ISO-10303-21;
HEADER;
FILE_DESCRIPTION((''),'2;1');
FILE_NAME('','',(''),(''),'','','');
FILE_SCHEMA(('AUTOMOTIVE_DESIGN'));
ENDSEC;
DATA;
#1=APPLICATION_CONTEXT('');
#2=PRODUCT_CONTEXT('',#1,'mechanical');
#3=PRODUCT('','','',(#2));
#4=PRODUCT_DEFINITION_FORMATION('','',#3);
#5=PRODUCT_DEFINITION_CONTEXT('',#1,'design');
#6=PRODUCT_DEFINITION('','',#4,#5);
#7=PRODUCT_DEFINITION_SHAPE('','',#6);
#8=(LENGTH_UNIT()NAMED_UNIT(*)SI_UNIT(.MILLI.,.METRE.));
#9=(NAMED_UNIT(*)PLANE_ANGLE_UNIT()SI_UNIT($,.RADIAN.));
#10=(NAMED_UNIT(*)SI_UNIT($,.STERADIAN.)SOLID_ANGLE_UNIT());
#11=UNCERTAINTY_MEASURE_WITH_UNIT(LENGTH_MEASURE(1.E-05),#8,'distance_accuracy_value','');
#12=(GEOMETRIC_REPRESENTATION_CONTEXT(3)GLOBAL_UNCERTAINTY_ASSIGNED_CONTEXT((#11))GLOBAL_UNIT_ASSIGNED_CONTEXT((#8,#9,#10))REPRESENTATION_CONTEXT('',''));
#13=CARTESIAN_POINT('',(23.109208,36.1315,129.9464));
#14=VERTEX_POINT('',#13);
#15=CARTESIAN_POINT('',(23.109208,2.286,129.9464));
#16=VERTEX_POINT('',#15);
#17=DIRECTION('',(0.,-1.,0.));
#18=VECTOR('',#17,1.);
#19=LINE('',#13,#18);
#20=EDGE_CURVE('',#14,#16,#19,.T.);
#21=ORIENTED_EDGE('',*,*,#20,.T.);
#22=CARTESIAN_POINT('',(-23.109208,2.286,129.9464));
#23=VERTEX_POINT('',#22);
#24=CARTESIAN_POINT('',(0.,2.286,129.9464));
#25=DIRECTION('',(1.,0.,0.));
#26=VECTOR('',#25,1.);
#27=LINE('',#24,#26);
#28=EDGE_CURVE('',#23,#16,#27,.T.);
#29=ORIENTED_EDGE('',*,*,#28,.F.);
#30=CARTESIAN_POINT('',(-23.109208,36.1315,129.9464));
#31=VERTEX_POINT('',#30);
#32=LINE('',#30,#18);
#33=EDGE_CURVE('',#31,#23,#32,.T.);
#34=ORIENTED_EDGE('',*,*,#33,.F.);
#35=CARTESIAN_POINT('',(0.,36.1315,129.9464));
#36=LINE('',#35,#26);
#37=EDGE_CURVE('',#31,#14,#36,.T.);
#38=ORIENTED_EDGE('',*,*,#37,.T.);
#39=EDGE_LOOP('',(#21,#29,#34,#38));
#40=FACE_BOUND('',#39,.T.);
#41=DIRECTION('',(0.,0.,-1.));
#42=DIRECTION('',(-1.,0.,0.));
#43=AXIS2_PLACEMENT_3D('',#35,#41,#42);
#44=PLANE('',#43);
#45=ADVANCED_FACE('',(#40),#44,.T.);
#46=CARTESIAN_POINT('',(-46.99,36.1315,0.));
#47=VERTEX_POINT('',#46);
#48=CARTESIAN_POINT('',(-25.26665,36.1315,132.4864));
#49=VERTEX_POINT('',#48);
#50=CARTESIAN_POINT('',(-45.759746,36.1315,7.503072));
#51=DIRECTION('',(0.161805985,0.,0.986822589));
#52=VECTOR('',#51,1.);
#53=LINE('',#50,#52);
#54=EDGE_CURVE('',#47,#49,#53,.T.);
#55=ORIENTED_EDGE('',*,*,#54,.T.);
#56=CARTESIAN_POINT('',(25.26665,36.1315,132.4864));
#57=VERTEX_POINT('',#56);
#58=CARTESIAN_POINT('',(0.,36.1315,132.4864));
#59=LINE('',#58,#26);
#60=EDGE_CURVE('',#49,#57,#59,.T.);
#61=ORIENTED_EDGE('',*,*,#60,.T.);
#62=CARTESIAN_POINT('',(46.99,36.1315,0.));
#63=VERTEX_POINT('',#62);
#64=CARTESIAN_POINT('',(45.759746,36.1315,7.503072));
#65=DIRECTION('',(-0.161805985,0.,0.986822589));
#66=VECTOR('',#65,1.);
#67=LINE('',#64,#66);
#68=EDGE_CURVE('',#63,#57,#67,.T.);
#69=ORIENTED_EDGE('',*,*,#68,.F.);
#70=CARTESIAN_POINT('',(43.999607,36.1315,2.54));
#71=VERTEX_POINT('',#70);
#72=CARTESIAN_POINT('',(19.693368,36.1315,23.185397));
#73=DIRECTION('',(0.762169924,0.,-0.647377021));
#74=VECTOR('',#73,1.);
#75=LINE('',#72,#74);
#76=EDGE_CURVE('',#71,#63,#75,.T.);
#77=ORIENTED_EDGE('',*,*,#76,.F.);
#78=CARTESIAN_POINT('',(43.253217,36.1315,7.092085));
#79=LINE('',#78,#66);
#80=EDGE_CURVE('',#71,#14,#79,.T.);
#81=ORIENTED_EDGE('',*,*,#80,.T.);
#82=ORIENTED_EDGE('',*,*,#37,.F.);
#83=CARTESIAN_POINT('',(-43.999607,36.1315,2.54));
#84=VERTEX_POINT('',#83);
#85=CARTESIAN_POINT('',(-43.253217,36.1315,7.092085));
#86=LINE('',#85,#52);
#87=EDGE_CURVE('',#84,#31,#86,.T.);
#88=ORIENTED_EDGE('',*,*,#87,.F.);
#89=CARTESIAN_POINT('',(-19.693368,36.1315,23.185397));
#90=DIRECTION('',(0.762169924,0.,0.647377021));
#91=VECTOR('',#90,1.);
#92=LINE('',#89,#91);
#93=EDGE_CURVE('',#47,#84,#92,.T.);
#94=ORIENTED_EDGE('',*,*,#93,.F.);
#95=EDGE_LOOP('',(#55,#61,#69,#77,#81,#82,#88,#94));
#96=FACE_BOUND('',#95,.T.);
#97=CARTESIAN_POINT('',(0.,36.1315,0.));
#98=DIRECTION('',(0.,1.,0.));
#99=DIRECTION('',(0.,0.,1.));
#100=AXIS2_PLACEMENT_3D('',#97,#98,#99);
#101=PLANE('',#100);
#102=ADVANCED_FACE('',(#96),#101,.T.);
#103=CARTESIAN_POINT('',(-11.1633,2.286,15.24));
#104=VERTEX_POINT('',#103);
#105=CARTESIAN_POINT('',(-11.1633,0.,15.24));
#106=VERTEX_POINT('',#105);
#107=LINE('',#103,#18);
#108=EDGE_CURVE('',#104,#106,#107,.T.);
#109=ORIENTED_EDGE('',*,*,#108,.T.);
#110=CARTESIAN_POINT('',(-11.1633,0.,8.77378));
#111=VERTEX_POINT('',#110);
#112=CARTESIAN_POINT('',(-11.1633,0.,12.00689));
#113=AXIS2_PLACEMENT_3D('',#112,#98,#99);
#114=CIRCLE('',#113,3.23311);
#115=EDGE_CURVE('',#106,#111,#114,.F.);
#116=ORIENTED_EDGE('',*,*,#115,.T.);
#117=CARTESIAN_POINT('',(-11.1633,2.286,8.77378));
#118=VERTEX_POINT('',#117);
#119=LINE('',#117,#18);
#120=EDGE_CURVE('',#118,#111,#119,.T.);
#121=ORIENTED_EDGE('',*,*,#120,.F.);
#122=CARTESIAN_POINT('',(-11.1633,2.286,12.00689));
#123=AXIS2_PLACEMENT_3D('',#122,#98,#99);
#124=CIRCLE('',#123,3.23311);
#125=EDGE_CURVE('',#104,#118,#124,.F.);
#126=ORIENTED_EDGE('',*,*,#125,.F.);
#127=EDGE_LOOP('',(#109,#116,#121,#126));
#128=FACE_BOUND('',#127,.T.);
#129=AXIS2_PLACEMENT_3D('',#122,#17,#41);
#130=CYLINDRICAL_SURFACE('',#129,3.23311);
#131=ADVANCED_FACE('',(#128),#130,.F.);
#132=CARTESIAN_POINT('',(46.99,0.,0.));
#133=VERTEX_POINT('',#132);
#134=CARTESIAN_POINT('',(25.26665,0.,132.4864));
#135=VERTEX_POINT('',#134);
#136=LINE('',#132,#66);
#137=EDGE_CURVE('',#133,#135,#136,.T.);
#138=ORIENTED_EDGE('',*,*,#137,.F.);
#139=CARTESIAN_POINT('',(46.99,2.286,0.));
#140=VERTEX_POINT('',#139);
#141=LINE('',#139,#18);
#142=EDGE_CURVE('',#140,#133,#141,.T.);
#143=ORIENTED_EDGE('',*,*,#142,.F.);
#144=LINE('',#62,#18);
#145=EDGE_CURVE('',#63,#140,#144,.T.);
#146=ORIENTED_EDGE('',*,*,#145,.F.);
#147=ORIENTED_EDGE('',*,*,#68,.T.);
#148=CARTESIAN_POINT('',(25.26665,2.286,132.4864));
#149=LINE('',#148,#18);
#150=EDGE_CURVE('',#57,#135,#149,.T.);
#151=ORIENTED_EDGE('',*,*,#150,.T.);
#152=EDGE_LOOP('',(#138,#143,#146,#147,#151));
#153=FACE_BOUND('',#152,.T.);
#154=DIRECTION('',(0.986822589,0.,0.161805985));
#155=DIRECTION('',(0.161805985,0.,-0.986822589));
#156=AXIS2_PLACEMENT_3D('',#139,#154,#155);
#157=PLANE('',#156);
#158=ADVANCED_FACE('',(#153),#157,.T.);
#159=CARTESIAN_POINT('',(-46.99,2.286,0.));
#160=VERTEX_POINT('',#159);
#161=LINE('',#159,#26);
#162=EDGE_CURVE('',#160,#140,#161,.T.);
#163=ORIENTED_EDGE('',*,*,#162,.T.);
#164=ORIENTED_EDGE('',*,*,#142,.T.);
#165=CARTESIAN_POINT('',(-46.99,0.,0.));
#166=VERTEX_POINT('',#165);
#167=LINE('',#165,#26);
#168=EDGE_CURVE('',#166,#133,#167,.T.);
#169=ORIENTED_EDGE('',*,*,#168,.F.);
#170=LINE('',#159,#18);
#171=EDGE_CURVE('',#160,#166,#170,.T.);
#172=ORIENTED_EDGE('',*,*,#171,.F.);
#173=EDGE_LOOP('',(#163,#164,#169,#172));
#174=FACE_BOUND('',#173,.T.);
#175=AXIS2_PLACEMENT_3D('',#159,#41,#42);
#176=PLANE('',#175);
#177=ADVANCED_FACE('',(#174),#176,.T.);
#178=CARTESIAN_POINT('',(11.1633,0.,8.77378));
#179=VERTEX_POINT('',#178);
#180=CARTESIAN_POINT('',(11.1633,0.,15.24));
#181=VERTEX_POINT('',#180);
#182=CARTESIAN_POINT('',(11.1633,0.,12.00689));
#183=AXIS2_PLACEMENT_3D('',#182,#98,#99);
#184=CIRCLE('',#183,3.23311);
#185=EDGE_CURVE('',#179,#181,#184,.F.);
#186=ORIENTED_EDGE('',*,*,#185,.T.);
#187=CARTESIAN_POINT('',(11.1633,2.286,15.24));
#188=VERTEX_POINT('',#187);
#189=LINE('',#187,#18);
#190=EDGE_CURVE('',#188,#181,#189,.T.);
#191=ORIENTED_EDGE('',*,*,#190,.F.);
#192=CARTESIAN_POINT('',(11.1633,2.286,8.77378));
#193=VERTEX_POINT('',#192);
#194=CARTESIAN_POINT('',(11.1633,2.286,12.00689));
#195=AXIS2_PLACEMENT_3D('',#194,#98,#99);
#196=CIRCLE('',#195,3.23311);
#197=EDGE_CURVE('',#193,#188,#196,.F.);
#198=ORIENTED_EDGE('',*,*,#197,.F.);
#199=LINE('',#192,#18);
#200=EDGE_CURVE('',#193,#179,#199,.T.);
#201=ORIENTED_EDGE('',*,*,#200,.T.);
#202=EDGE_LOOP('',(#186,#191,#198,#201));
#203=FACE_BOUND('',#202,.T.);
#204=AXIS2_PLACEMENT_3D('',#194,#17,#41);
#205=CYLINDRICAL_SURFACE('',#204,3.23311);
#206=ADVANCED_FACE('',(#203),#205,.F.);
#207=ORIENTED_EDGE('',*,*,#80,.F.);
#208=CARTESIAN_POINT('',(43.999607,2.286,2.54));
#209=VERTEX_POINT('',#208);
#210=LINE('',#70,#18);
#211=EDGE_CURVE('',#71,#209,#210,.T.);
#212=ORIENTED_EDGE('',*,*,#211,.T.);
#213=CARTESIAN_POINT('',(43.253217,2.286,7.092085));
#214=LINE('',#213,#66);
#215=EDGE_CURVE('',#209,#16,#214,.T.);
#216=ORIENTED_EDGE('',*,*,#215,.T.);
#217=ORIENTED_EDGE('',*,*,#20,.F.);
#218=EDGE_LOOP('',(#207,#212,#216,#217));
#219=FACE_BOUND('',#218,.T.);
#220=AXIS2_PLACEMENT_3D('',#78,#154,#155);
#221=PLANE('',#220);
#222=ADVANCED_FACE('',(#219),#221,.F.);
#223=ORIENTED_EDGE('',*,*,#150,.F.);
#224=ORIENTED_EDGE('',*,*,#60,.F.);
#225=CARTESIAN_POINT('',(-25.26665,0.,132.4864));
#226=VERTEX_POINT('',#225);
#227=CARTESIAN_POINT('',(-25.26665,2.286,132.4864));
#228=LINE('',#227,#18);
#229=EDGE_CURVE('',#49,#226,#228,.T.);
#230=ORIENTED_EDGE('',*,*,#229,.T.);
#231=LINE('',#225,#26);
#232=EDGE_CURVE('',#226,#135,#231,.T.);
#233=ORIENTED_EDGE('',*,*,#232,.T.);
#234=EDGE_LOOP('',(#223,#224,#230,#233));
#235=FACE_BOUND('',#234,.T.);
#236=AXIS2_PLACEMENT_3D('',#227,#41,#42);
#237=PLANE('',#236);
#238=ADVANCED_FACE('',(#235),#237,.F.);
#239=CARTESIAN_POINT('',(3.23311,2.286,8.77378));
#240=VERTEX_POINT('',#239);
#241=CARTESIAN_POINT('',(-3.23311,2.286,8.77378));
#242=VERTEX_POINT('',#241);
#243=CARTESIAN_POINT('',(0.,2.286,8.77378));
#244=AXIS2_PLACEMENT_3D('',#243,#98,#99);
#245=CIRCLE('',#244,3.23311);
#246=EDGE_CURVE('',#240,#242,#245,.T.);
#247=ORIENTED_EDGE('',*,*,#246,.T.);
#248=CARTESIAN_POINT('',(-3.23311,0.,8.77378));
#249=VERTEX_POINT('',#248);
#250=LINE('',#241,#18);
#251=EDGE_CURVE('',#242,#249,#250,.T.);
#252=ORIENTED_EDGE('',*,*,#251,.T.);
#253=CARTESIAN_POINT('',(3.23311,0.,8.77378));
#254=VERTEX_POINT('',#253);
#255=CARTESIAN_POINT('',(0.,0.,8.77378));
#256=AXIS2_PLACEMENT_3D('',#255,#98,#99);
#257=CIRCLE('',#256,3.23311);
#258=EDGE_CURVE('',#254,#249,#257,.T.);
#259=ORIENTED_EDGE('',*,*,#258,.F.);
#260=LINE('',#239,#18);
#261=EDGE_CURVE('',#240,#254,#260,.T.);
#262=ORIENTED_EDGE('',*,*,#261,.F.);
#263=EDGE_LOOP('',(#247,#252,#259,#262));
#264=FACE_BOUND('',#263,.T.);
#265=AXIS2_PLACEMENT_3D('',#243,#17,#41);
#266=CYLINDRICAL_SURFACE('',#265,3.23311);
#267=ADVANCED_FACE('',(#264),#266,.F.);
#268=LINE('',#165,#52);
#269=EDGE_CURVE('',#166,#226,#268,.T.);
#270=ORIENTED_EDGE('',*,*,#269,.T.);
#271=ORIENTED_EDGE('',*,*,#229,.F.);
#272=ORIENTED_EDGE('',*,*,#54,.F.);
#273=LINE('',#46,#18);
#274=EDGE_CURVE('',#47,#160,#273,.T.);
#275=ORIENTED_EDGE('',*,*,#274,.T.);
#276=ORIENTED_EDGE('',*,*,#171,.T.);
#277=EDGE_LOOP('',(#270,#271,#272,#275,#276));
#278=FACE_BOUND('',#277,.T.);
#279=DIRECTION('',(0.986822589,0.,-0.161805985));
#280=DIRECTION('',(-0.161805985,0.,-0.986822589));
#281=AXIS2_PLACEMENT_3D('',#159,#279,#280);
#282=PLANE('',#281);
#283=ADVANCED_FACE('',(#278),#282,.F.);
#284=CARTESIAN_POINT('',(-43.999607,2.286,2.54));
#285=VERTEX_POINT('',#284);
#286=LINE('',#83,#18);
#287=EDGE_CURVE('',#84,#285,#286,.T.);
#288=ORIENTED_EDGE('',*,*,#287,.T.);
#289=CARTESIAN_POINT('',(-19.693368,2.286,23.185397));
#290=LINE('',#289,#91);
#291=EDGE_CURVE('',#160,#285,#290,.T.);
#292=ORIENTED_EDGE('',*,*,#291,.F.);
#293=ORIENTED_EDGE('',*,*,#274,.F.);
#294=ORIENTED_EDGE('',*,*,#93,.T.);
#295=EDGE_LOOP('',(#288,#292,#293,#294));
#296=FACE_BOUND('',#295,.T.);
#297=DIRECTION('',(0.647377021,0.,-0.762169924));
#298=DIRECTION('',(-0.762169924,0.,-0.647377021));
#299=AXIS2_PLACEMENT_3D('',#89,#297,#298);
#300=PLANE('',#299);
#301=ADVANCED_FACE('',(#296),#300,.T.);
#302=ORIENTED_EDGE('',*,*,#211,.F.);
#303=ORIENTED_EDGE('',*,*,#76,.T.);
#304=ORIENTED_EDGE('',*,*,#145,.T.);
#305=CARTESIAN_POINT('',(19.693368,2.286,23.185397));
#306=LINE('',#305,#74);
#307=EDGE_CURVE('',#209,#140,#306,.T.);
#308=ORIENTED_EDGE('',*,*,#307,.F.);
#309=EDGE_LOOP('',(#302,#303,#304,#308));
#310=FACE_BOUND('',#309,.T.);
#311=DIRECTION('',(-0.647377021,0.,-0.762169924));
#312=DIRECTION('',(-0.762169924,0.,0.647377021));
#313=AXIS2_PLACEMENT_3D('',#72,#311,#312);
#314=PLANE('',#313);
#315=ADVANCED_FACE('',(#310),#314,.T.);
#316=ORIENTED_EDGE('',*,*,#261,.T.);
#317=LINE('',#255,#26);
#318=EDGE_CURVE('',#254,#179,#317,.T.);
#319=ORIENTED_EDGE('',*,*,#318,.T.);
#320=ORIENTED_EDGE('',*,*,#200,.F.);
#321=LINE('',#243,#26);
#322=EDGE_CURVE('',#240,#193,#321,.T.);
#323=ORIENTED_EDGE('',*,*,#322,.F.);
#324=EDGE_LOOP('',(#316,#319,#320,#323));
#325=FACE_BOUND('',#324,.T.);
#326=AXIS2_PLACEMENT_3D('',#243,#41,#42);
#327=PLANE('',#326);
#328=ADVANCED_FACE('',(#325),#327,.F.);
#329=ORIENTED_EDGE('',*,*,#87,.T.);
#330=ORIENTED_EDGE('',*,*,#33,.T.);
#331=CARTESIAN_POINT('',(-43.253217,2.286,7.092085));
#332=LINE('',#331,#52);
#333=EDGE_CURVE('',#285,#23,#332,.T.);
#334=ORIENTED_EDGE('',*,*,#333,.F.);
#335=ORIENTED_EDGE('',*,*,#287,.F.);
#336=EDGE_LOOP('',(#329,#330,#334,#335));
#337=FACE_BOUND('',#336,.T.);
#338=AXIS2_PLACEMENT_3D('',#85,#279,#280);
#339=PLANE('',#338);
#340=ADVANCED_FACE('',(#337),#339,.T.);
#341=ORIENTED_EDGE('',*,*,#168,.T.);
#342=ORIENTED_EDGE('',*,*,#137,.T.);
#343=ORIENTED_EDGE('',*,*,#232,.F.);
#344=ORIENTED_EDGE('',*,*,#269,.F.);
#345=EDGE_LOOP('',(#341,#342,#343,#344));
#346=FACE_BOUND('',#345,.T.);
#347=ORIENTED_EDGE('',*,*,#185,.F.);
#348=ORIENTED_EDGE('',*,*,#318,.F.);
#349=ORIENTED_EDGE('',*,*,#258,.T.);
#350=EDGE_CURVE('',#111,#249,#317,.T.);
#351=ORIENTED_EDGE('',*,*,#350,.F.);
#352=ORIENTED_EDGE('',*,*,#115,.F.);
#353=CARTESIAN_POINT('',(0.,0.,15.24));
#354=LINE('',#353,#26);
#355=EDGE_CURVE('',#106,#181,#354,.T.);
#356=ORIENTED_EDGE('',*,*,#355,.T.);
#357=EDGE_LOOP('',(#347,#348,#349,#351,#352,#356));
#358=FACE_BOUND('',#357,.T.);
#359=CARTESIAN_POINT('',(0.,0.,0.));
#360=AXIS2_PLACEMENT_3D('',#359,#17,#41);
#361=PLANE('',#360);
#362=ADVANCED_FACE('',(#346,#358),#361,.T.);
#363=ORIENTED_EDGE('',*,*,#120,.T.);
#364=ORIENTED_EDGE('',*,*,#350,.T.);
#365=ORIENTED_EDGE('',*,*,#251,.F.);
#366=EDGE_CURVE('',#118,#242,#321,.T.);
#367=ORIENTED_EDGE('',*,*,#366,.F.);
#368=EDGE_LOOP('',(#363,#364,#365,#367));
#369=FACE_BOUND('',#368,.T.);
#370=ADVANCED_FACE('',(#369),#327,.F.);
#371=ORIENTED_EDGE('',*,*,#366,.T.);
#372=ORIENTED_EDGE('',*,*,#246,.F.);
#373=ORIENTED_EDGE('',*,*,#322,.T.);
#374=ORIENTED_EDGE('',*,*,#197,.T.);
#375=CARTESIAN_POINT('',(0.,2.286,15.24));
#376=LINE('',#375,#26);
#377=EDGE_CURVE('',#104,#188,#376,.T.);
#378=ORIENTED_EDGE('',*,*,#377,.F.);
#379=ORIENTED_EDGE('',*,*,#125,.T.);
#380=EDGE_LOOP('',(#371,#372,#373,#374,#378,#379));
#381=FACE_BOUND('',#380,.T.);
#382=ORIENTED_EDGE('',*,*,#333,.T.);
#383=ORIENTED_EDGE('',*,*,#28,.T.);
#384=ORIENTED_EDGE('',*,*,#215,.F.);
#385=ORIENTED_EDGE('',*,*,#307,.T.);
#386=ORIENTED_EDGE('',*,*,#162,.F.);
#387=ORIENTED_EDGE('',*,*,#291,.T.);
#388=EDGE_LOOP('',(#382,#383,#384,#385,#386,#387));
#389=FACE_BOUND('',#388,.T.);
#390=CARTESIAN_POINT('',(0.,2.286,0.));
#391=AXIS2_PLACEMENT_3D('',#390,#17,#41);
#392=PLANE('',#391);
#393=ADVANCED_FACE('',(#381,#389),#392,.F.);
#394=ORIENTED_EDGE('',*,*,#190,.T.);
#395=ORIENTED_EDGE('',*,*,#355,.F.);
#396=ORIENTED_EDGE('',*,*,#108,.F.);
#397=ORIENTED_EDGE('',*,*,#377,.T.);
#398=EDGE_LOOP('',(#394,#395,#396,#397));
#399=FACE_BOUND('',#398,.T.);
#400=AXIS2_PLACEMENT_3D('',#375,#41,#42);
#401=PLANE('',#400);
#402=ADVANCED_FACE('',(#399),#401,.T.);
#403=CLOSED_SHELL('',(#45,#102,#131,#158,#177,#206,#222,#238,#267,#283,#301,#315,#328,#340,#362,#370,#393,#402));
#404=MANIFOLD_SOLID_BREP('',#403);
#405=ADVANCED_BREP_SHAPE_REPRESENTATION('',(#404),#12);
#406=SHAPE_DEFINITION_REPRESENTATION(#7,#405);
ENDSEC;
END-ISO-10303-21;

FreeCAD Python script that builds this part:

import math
import FreeCAD as App
import Part
import Sketcher

V = App.Vector
Q = App.Units.Quantity

doc = App.newDocument("Part")
body = doc.addObject("PartDesign::Body", "Body")

sketch1 = doc.addObject("Sketcher::SketchObject", "Sketch")
body.addObject(sketch1)
sketch1.AttachmentSupport = (doc.XZ_Plane, [""])
sketch1.MapMode = "FlatFace"
sketch1.addGeometry([
    Part.LineSegment(V(47, 0, 0), V(-47, 0, 0)),
    Part.LineSegment(V(-47, 0, 0), V(-25.3, 132.5, 0)),
    Part.LineSegment(V(-25.3, 132.5, 0), V(25.3, 132.5, 0)),
    Part.LineSegment(V(25.3, 132.5, 0), V(47, 0, 0)),
    Part.LineSegment(V(-11.2, 8.8, 0), V(-3.2, 8.8, 0)),
    Part.ArcOfCircle(Part.Circle(V(0, 8.8, 0), V(0, 0, 1), 3.2), math.radians(180), math.radians(360)),
    Part.LineSegment(V(3.2, 8.8, 0), V(11.2, 8.8, 0)),
    Part.ArcOfCircle(Part.Circle(V(11.2, 12, 0), V(0, 0, 1), 3.2), math.radians(-90), math.radians(90)),
    Part.LineSegment(V(11.2, 15.2, 0), V(-11.2, 15.2, 0)),
    Part.ArcOfCircle(Part.Circle(V(-11.2, 12, 0), V(0, 0, 1), 3.2), math.radians(90), math.radians(270)),
], False)
sketch1.addConstraint([
    Sketcher.Constraint("Coincident", 0, 2, 1, 1),
    Sketcher.Constraint("Coincident", 1, 2, 2, 1),
    Sketcher.Constraint("Coincident", 2, 2, 3, 1),
    Sketcher.Constraint("Coincident", 3, 2, 0, 1),
    Sketcher.Constraint("Coincident", 4, 2, 5, 1),
    Sketcher.Constraint("Coincident", 5, 2, 6, 1),
    Sketcher.Constraint("Tangent", 6, 2, 7, 1),
    Sketcher.Constraint("Tangent", 7, 2, 8, 1),
    Sketcher.Constraint("Tangent", 8, 2, 9, 1),
    Sketcher.Constraint("Tangent", 9, 2, 4, 1),
    Sketcher.Constraint("Horizontal", 0),
    Sketcher.Constraint("Horizontal", 2),
    Sketcher.Constraint("Horizontal", 4),
    Sketcher.Constraint("Horizontal", 6),
    Sketcher.Constraint("Horizontal", 8),
    Sketcher.Constraint("Equal", 5, 7),
    Sketcher.Constraint("Equal", 7, 9),
    Sketcher.Constraint("Symmetric", 0, 2, 3, 2, -1, 1),
    Sketcher.Constraint("PointOnObject", 5, 3, -2),
    Sketcher.Constraint("Horizontal", 5, 3, 4, 2),
    Sketcher.Constraint("Equal", 4, 6),
    Sketcher.Constraint("Equal", 1, 3),
    Sketcher.Constraint("DistanceX", 0, 2, 0, 1, Q("3.7 in")),
    Sketcher.Constraint("DistanceY", -1, 1, 7, 2, Q("0.6 in")),
    Sketcher.Constraint("DistanceX", 8, 2, 8, 1, Q("0.879 in")),
    Sketcher.Constraint("DistanceX", 2, 1, 2, 2, Q("1.9895 in")),
    Sketcher.Constraint("DistanceY", -1, 1, 1, 2, Q("5.216 in")),
    Sketcher.Constraint("Radius", 5, 3.23311),
])
pad1 = doc.addObject("PartDesign::Pad", "Pad")
body.addObject(pad1)
pad1.Profile = sketch1
pad1.Length = Q("0.09 in")
pad1.Reversed = True

sketch2 = doc.addObject("Sketcher::SketchObject", "Sketch001")
body.addObject(sketch2)
sketch2.AttachmentSupport = (doc.XZ_Plane, [""])
sketch2.MapMode = "FlatFace"
sketch2.addGeometry([
    Part.LineSegment(V(-25.3, 132.5, 0), V(25.3, 132.5, 0)),
    Part.LineSegment(V(25.3, 132.5, 0), V(47, 0, 0)),
    Part.LineSegment(V(47, 0, 0), V(44, 2.5, 0)),
    Part.LineSegment(V(44, 2.5, 0), V(23.1, 129.9, 0)),
    Part.LineSegment(V(23.1, 129.9, 0), V(-23.1, 129.9, 0)),
    Part.LineSegment(V(-23.1, 129.9, 0), V(-44, 2.5, 0)),
    Part.LineSegment(V(-44, 2.5, 0), V(-47, 0, 0)),
    Part.LineSegment(V(-47, 0, 0), V(-25.3, 132.5, 0)),
], False)
sketch2.addConstraint([
    Sketcher.Constraint("Coincident", 0, 2, 1, 1),
    Sketcher.Constraint("Coincident", 1, 2, 2, 1),
    Sketcher.Constraint("Coincident", 2, 2, 3, 1),
    Sketcher.Constraint("Coincident", 3, 2, 4, 1),
    Sketcher.Constraint("Coincident", 4, 2, 5, 1),
    Sketcher.Constraint("Coincident", 5, 2, 6, 1),
    Sketcher.Constraint("Coincident", 6, 2, 7, 1),
    Sketcher.Constraint("Coincident", 7, 2, 0, 1),
    Sketcher.Constraint("Horizontal", 0),
    Sketcher.Constraint("Horizontal", 4),
    Sketcher.Constraint("Symmetric", 1, 2, 6, 2, -1, 1),
    Sketcher.Constraint("Symmetric", 2, 2, 5, 2, -2),
    Sketcher.Constraint("PointOnObject", 1, 2, -1),
    Sketcher.Constraint("Parallel", 1, 3),
    Sketcher.Constraint("Parallel", 5, 7),
    Sketcher.Constraint("Equal", 3, 5),
    Sketcher.Constraint("DistanceY", -1, 1, 2, 2, Q("0.1 in")),
    Sketcher.Constraint("DistanceY", 3, 2, 0, 2, Q("0.1 in")),
    Sketcher.Constraint("DistanceX", 6, 2, 1, 2, Q("3.7 in")),
    Sketcher.Constraint("DistanceX", 0, 1, 0, 2, Q("1.9895 in")),
    Sketcher.Constraint("DistanceY", -1, 1, 0, 2, Q("5.216 in")),
    Sketcher.Constraint("DistanceX", 4, 2, 4, 1, 46.218415),
])
pad2 = doc.addObject("PartDesign::Pad", "Pad001")
body.addObject(pad2)
pad2.Profile = sketch2
pad2.Length = Q("1.4225 in")
pad2.Reversed = True

doc.recompute()
